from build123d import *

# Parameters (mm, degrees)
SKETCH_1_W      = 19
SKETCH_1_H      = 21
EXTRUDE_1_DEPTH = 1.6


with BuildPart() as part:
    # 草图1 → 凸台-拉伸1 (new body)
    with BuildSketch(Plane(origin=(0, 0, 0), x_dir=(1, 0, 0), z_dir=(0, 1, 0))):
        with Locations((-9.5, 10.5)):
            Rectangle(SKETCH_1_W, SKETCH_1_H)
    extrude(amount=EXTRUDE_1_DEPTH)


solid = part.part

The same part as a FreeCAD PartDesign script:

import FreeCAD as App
import Part
import Sketcher


def add_polygon(sketch, points):
    """Adds a closed chain of lines whose ends are joined by coincident constraints."""
    first, n = sketch.GeometryCount, len(points)
    for a, b in zip(points, points[1:] + points[:1]):
        sketch.addGeometry(Part.LineSegment(App.Vector(*a, 0), App.Vector(*b, 0)), False)
    for i in range(n):
        sketch.addConstraint(Sketcher.Constraint("Coincident", first + i, 2, first + (i + 1) % n, 1))

doc = App.newDocument("Part")
body = doc.addObject("PartDesign::Body", "Body")

sketch1 = doc.addObject("Sketcher::SketchObject", "Sketch")
body.addObject(sketch1)
sketch1.AttachmentSupport = (doc.XZ_Plane, [""])
sketch1.MapMode = "FlatFace"
add_polygon(sketch1, [(-19, -21), (-19, 0), (0, 0), (0, -21)])
sketch1.addConstraint(Sketcher.Constraint("Vertical", 0))
sketch1.addConstraint(Sketcher.Constraint("Horizontal", 1))
sketch1.addConstraint(Sketcher.Constraint("Vertical", 2))
sketch1.addConstraint(Sketcher.Constraint("Horizontal", 3))
sketch1.addConstraint(Sketcher.Constraint("Coincident", 1, 2, -1, 1))
sketch1.addConstraint(Sketcher.Constraint("DistanceX", 1, 1, 1, 2, 19.0))
sketch1.addConstraint(Sketcher.Constraint("DistanceY", 0, 1, 0, 2, 21.0))
pad1 = doc.addObject("PartDesign::Pad", "Pad")
body.addObject(pad1)
pad1.Profile = sketch1
pad1.Length = 1.6
pad1.Reversed = True

doc.recompute()
